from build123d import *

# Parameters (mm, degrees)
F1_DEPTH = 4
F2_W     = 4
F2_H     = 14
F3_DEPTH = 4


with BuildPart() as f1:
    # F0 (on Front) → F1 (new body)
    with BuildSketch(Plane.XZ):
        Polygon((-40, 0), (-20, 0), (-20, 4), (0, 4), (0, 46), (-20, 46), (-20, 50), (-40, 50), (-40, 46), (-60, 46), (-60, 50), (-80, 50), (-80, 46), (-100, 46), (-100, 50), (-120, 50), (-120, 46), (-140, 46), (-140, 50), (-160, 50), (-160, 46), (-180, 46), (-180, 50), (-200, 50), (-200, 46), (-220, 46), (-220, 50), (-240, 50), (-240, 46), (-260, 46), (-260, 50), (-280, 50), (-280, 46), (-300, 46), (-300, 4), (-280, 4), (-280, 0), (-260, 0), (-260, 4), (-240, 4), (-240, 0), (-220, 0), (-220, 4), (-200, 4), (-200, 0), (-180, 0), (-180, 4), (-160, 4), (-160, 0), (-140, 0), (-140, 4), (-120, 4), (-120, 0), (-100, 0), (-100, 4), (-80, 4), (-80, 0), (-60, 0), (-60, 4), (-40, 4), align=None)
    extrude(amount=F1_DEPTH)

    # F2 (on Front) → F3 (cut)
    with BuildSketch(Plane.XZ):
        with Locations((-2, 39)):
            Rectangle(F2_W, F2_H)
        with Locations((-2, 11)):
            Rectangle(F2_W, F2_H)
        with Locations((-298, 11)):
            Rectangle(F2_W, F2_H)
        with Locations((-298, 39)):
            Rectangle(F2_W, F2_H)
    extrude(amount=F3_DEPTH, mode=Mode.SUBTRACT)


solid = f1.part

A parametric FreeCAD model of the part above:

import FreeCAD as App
import Part
import Sketcher
Q = App.Units.Quantity

doc = App.newDocument("Part")
body = doc.addObject("PartDesign::Body", "Body")

# Sketch on XZ plane
sketch1 = body.newObject("Sketcher::SketchObject", "Sketch")
sketch1.AttachmentSupport = (doc.getObject("XZ_Plane"), [""])
sketch1.MapMode = "FlatFace"
sketch1.addGeometry(Part.LineSegment(App.Vector(-40, 0, 0), App.Vector(-20, 0, 0)), False)
sketch1.addGeometry(Part.LineSegment(App.Vector(-20, 0, 0), App.Vector(-20, 4, 0)), False)
sketch1.addGeometry(Part.LineSegment(App.Vector(-20, 4, 0), App.Vector(0, 4, 0)), False)
sketch1.addGeometry(Part.LineSegment(App.Vector(0, 4, 0), App.Vector(0, 46, 0)), False)
sketch1.addGeometry(Part.LineSegment(App.Vector(0, 46, 0), App.Vector(-20, 46, 0)), False)
sketch1.addGeometry(Part.LineSegment(App.Vector(-20, 46, 0), App.Vector(-20, 50, 0)), False)
sketch1.addGeometry(Part.LineSegment(App.Vector(-20, 50, 0), App.Vector(-40, 50, 0)), False)
sketch1.addGeometry(Part.LineSegment(App.Vector(-40, 50, 0), App.Vector(-40, 46, 0)), False)
sketch1.addGeometry(Part.LineSegment(App.Vector(-40, 46, 0), App.Vector(-60, 46, 0)), False)
sketch1.addGeometry(Part.LineSegment(App.Vector(-60, 46, 0), App.Vector(-60, 50, 0)), False)
sketch1.addGeometry(Part.LineSegment(App.Vector(-60, 50, 0), App.Vector(-80, 50, 0)), False)
sketch1.addGeometry(Part.LineSegment(App.Vector(-80, 50, 0), App.Vector(-80, 46, 0)), False)
sketch1.addGeometry(Part.LineSegment(App.Vector(-80, 46, 0), App.Vector(-100, 46, 0)), False)
sketch1.addGeometry(Part.LineSegment(App.Vector(-100, 46, 0), App.Vector(-100, 50, 0)), False)
sketch1.addGeometry(Part.LineSegment(App.Vector(-100, 50, 0), App.Vector(-120, 50, 0)), False)
sketch1.addGeometry(Part.LineSegment(App.Vector(-120, 50, 0), App.Vector(-120, 46, 0)), False)
sketch1.addGeometry(Part.LineSegment(App.Vector(-120, 46, 0), App.Vector(-140, 46, 0)), False)
sketch1.addGeometry(Part.LineSegment(App.Vector(-140, 46, 0), App.Vector(-140, 50, 0)), False)
sketch1.addGeometry(Part.LineSegment(App.Vector(-140, 50, 0), App.Vector(-160, 50, 0)), False)
sketch1.addGeometry(Part.LineSegment(App.Vector(-160, 50, 0), App.Vector(-160, 46, 0)), False)
sketch1.addGeometry(Part.LineSegment(App.Vector(-160, 46, 0), App.Vector(-180, 46, 0)), False)
sketch1.addGeometry(Part.LineSegment(App.Vector(-180, 46, 0), App.Vector(-180, 50, 0)), False)
sketch1.addGeometry(Part.LineSegment(App.Vector(-180, 50, 0), App.Vector(-200, 50, 0)), False)
sketch1.addGeometry(Part.LineSegment(App.Vector(-200, 50, 0), App.Vector(-200, 46, 0)), False)
sketch1.addGeometry(Part.LineSegment(App.Vector(-200, 46, 0), App.Vector(-220, 46, 0)), False)
sketch1.addGeometry(Part.LineSegment(App.Vector(-220, 46, 0), App.Vector(-220, 50, 0)), False)
sketch1.addGeometry(Part.LineSegment(App.Vector(-220, 50, 0), App.Vector(-240, 50, 0)), False)
sketch1.addGeometry(Part.LineSegment(App.Vector(-240, 50, 0), App.Vector(-240, 46, 0)), False)
sketch1.addGeometry(Part.LineSegment(App.Vector(-240, 46, 0), App.Vector(-260, 46, 0)), False)
sketch1.addGeometry(Part.LineSegment(App.Vector(-260, 46, 0), App.Vector(-260, 50, 0)), False)
sketch1.addGeometry(Part.LineSegment(App.Vector(-260, 50, 0), App.Vector(-280, 50, 0)), False)
sketch1.addGeometry(Part.LineSegment(App.Vector(-280, 50, 0), App.Vector(-280, 46, 0)), False)
sketch1.addGeometry(Part.LineSegment(App.Vector(-280, 46, 0), App.Vector(-300, 46, 0)), False)
sketch1.addGeometry(Part.LineSegment(App.Vector(-300, 46, 0), App.Vector(-300, 4, 0)), False)
sketch1.addGeometry(Part.LineSegment(App.Vector(-300, 4, 0), App.Vector(-280, 4, 0)), False)
sketch1.addGeometry(Part.LineSegment(App.Vector(-280, 4, 0), App.Vector(-280, 0, 0)), False)
sketch1.addGeometry(Part.LineSegment(App.Vector(-280, 0, 0), App.Vector(-260, 0, 0)), False)
sketch1.addGeometry(Part.LineSegment(App.Vector(-260, 0, 0), App.Vector(-260, 4, 0)), False)
sketch1.addGeometry(Part.LineSegment(App.Vector(-260, 4, 0), App.Vector(-240, 4, 0)), False)
sketch1.addGeometry(Part.LineSegment(App.Vector(-240, 4, 0), App.Vector(-240, 0, 0)), False)
sketch1.addGeometry(Part.LineSegment(App.Vector(-240, 0, 0), App.Vector(-220, 0, 0)), False)
sketch1.addGeometry(Part.LineSegment(App.Vector(-220, 0, 0), App.Vector(-220, 4, 0)), False)
sketch1.addGeometry(Part.LineSegment(App.Vector(-220, 4, 0), App.Vector(-200, 4, 0)), False)
sketch1.addGeometry(Part.LineSegment(App.Vector(-200, 4, 0), App.Vector(-200, 0, 0)), False)
sketch1.addGeometry(Part.LineSegment(App.Vector(-200, 0, 0), App.Vector(-180, 0, 0)), False)
sketch1.addGeometry(Part.LineSegment(App.Vector(-180, 0, 0), App.Vector(-180, 4, 0)), False)
sketch1.addGeometry(Part.LineSegment(App.Vector(-180, 4, 0), App.Vector(-160, 4, 0)), False)
sketch1.addGeometry(Part.LineSegment(App.Vector(-160, 4, 0), App.Vector(-160, 0, 0)), False)
sketch1.addGeometry(Part.LineSegment(App.Vector(-160, 0, 0), App.Vector(-140, 0, 0)), False)
sketch1.addGeometry(Part.LineSegment(App.Vector(-140, 0, 0), App.Vector(-140, 4, 0)), False)
sketch1.addGeometry(Part.LineSegment(App.Vector(-140, 4, 0), App.Vector(-120, 4, 0)), False)
sketch1.addGeometry(Part.LineSegment(App.Vector(-120, 4, 0), App.Vector(-120, 0, 0)), False)
sketch1.addGeometry(Part.LineSegment(App.Vector(-120, 0, 0), App.Vector(-100, 0, 0)), False)
sketch1.addGeometry(Part.LineSegment(App.Vector(-100, 0, 0), App.Vector(-100, 4, 0)), False)
sketch1.addGeometry(Part.LineSegment(App.Vector(-100, 4, 0), App.Vector(-80, 4, 0)), False)
sketch1.addGeometry(Part.LineSegment(App.Vector(-80, 4, 0), App.Vector(-80, 0, 0)), False)
sketch1.addGeometry(Part.LineSegment(App.Vector(-80, 0, 0), App.Vector(-60, 0, 0)), False)
sketch1.addGeometry(Part.LineSegment(App.Vector(-60, 0, 0), App.Vector(-60, 4, 0)), False)
sketch1.addGeometry(Part.LineSegment(App.Vector(-60, 4, 0), App.Vector(-40, 4, 0)), False)
sketch1.addGeometry(Part.LineSegment(App.Vector(-40, 4, 0), App.Vector(-40, 0, 0)), False)
sketch1.addConstraint(Sketcher.Constraint("Coincident", 0, 2, 1, 1))
sketch1.addConstraint(Sketcher.Constraint("Coincident", 1, 2, 2, 1))
sketch1.addConstraint(Sketcher.Constraint("Coincident", 2, 2, 3, 1))
sketch1.addConstraint(Sketcher.Constraint("Coincident", 3, 2, 4, 1))
sketch1.addConstraint(Sketcher.Constraint("Coincident", 4, 2, 5, 1))
sketch1.addConstraint(Sketcher.Constraint("Coincident", 5, 2, 6, 1))
sketch1.addConstraint(Sketcher.Constraint("Coincident", 6, 2, 7, 1))
sketch1.addConstraint(Sketcher.Constraint("Coincident", 7, 2, 8, 1))
sketch1.addConstraint(Sketcher.Constraint("Coincident", 8, 2, 9, 1))
sketch1.addConstraint(Sketcher.Constraint("Coincident", 9, 2, 10, 1))
sketch1.addConstraint(Sketcher.Constraint("Coincident", 10, 2, 11, 1))
sketch1.addConstraint(Sketcher.Constraint("Coincident", 11, 2, 12, 1))
sketch1.addConstraint(Sketcher.Constraint("Coincident", 12, 2, 13, 1))
sketch1.addConstraint(Sketcher.Constraint("Coincident", 13, 2, 14, 1))
sketch1.addConstraint(Sketcher.Constraint("Coincident", 14, 2, 15, 1))
sketch1.addConstraint(Sketcher.Constraint("Coincident", 15, 2, 16, 1))
sketch1.addConstraint(Sketcher.Constraint("Coincident", 16, 2, 17, 1))
sketch1.addConstraint(Sketcher.Constraint("Coincident", 17, 2, 18, 1))
sketch1.addConstraint(Sketcher.Constraint("Coincident", 18, 2, 19, 1))
sketch1.addConstraint(Sketcher.Constraint("Coincident", 19, 2, 20, 1))
sketch1.addConstraint(Sketcher.Constraint("Coincident", 20, 2, 21, 1))
sketch1.addConstraint(Sketcher.Constraint("Coincident", 21, 2, 22, 1))
sketch1.addConstraint(Sketcher.Constraint("Coincident", 22, 2, 23, 1))
sketch1.addConstraint(Sketcher.Constraint("Coincident", 23, 2, 24, 1))
sketch1.addConstraint(Sketcher.Constraint("Coincident", 24, 2, 25, 1))
sketch1.addConstraint(Sketcher.Constraint("Coincident", 25, 2, 26, 1))
sketch1.addConstraint(Sketcher.Constraint("Coincident", 26, 2, 27, 1))
sketch1.addConstraint(Sketcher.Constraint("Coincident", 27, 2, 28, 1))
sketch1.addConstraint(Sketcher.Constraint("Coincident", 28, 2, 29, 1))
sketch1.addConstraint(Sketcher.Constraint("Coincident", 29, 2, 30, 1))
sketch1.addConstraint(Sketcher.Constraint("Coincident", 30, 2, 31, 1))
sketch1.addConstraint(Sketcher.Constraint("Coincident", 31, 2, 32, 1))
sketch1.addConstraint(Sketcher.Constraint("Coincident", 32, 2, 33, 1))
sketch1.addConstraint(Sketcher.Constraint("Coincident", 33, 2, 34, 1))
sketch1.addConstraint(Sketcher.Constraint("Coincident", 34, 2, 35, 1))
sketch1.addConstraint(Sketcher.Constraint("Coincident", 35, 2, 36, 1))
sketch1.addConstraint(Sketcher.Constraint("Coincident", 36, 2, 37, 1))
sketch1.addConstraint(Sketcher.Constraint("Coincident", 37, 2, 38, 1))
sketch1.addConstraint(Sketcher.Constraint("Coincident", 38, 2, 39, 1))
sketch1.addConstraint(Sketcher.Constraint("Coincident", 39, 2, 40, 1))
sketch1.addConstraint(Sketcher.Constraint("Coincident", 40, 2, 41, 1))
sketch1.addConstraint(Sketcher.Constraint("Coincident", 41, 2, 42, 1))
sketch1.addConstraint(Sketcher.Constraint("Coincident", 42, 2, 43, 1))
sketch1.addConstraint(Sketcher.Constraint("Coincident", 43, 2, 44, 1))
sketch1.addConstraint(Sketcher.Constraint("Coincident", 44, 2, 45, 1))
sketch1.addConstraint(Sketcher.Constraint("Coincident", 45, 2, 46, 1))
sketch1.addConstraint(Sketcher.Constraint("Coincident", 46, 2, 47, 1))
sketch1.addConstraint(Sketcher.Constraint("Coincident", 47, 2, 48, 1))
sketch1.addConstraint(Sketcher.Constraint("Coincident", 48, 2, 49, 1))
sketch1.addConstraint(Sketcher.Constraint("Coincident", 49, 2, 50, 1))
sketch1.addConstraint(Sketcher.Constraint("Coincident", 50, 2, 51, 1))
sketch1.addConstraint(Sketcher.Constraint("Coincident", 51, 2, 52, 1))
sketch1.addConstraint(Sketcher.Constraint("Coincident", 52, 2, 53, 1))
sketch1.addConstraint(Sketcher.Constraint("Coincident", 53, 2, 54, 1))
sketch1.addConstraint(Sketcher.Constraint("Coincident", 54, 2, 55, 1))
sketch1.addConstraint(Sketcher.Constraint("Coincident", 55, 2, 56, 1))
sketch1.addConstraint(Sketcher.Constraint("Coincident", 56, 2, 57, 1))
sketch1.addConstraint(Sketcher.Constraint("Coincident", 57, 2, 58, 1))
sketch1.addConstraint(Sketcher.Constraint("Coincident", 58, 2, 59, 1))
sketch1.addConstraint(Sketcher.Constraint("Coincident", 59, 2, 0, 1))
sketch1.addConstraint(Sketcher.Constraint("Horizontal", 0))
sketch1.addConstraint(Sketcher.Constraint("Vertical", 1))
sketch1.addConstraint(Sketcher.Constraint("Horizontal", 2))
sketch1.addConstraint(Sketcher.Constraint("Vertical", 3))
sketch1.addConstraint(Sketcher.Constraint("Horizontal", 4))
sketch1.addConstraint(Sketcher.Constraint("Vertical", 5))
sketch1.addConstraint(Sketcher.Constraint("Horizontal", 6))
sketch1.addConstraint(Sketcher.Constraint("Vertical", 7))
sketch1.addConstraint(Sketcher.Constraint("Horizontal", 8))
sketch1.addConstraint(Sketcher.Constraint("Vertical", 9))
sketch1.addConstraint(Sketcher.Constraint("Horizontal", 10))
sketch1.addConstraint(Sketcher.Constraint("Vertical", 11))
sketch1.addConstraint(Sketcher.Constraint("Horizontal", 12))
sketch1.addConstraint(Sketcher.Constraint("Vertical", 13))
sketch1.addConstraint(Sketcher.Constraint("Horizontal", 14))
sketch1.addConstraint(Sketcher.Constraint("Vertical", 15))
sketch1.addConstraint(Sketcher.Constraint("Horizontal", 16))
sketch1.addConstraint(Sketcher.Constraint("Vertical", 17))
sketch1.addConstraint(Sketcher.Constraint("Horizontal", 18))
sketch1.addConstraint(Sketcher.Constraint("Vertical", 19))
sketch1.addConstraint(Sketcher.Constraint("Horizontal", 20))
sketch1.addConstraint(Sketcher.Constraint("Vertical", 21))
sketch1.addConstraint(Sketcher.Constraint("Horizontal", 22))
sketch1.addConstraint(Sketcher.Constraint("Vertical", 23))
sketch1.addConstraint(Sketcher.Constraint("Horizontal", 24))
sketch1.addConstraint(Sketcher.Constraint("Vertical", 25))
sketch1.addConstraint(Sketcher.Constraint("Horizontal", 26))
sketch1.addConstraint(Sketcher.Constraint("Vertical", 27))
sketch1.addConstraint(Sketcher.Constraint("Horizontal", 28))
sketch1.addConstraint(Sketcher.Constraint("Vertical", 29))
sketch1.addConstraint(Sketcher.Constraint("Horizontal", 30))
sketch1.addConstraint(Sketcher.Constraint("Vertical", 31))
sketch1.addConstraint(Sketcher.Constraint("Horizontal", 32))
sketch1.addConstraint(Sketcher.Constraint("Vertical", 33))
sketch1.addConstraint(Sketcher.Constraint("Horizontal", 34))
sketch1.addConstraint(Sketcher.Constraint("Vertical", 35))
sketch1.addConstraint(Sketcher.Constraint("Horizontal", 36))
sketch1.addConstraint(Sketcher.Constraint("Vertical", 37))
sketch1.addConstraint(Sketcher.Constraint("Horizontal", 38))
sketch1.addConstraint(Sketcher.Constraint("Vertical", 39))
sketch1.addConstraint(Sketcher.Constraint("Horizontal", 40))
sketch1.addConstraint(Sketcher.Constraint("Vertical", 41))
sketch1.addConstraint(Sketcher.Constraint("Horizontal", 42))
sketch1.addConstraint(Sketcher.Constraint("Vertical", 43))
sketch1.addConstraint(Sketcher.Constraint("Horizontal", 44))
sketch1.addConstraint(Sketcher.Constraint("Vertical", 45))
sketch1.addConstraint(Sketcher.Constraint("Horizontal", 46))
sketch1.addConstraint(Sketcher.Constraint("Vertical", 47))
sketch1.addConstraint(Sketcher.Constraint("Horizontal", 48))
sketch1.addConstraint(Sketcher.Constraint("Vertical", 49))
sketch1.addConstraint(Sketcher.Constraint("Horizontal", 50))
sketch1.addConstraint(Sketcher.Constraint("Vertical", 51))
sketch1.addConstraint(Sketcher.Constraint("Horizontal", 52))
sketch1.addConstraint(Sketcher.Constraint("Vertical", 53))
sketch1.addConstraint(Sketcher.Constraint("Horizontal", 54))
sketch1.addConstraint(Sketcher.Constraint("Vertical", 55))
sketch1.addConstraint(Sketcher.Constraint("Horizontal", 56))
sketch1.addConstraint(Sketcher.Constraint("Vertical", 57))
sketch1.addConstraint(Sketcher.Constraint("Horizontal", 58))
sketch1.addConstraint(Sketcher.Constraint("Vertical", 59))
sketch1.addConstraint(Sketcher.Constraint("PointOnObject", 0, 2, -1))
sketch1.addConstraint(Sketcher.Constraint("PointOnObject", 2, 2, -2))
sketch1.addConstraint(Sketcher.Constraint("PointOnObject", 35, 2, -1))
sketch1.addConstraint(Sketcher.Constraint("PointOnObject", 39, 2, -1))
sketch1.addConstraint(Sketcher.Constraint("PointOnObject", 43, 2, -1))
sketch1.addConstraint(Sketcher.Constraint("PointOnObject", 47, 2, -1))
sketch1.addConstraint(Sketcher.Constraint("PointOnObject", 51, 2, -1))
sketch1.addConstraint(Sketcher.Constraint("PointOnObject", 55, 2, -1))
sketch1.addConstraint(Sketcher.Constraint("Horizontal", 4, 2, 7, 2))
sketch1.addConstraint(Sketcher.Constraint("Horizontal", 6, 2, 9, 2))
sketch1.addConstraint(Sketcher.Constraint("Horizontal", 8, 2, 11, 2))
sketch1.addConstraint(Sketcher.Constraint("Horizontal", 10, 2, 13, 2))
sketch1.addConstraint(Sketcher.Constraint("Horizontal", 12, 2, 15, 2))
sketch1.addConstraint(Sketcher.Constraint("Horizontal", 14, 2, 17, 2))
sketch1.addConstraint(Sketcher.Constraint("Horizontal", 16, 2, 19, 2))
sketch1.addConstraint(Sketcher.Constraint("Horizontal", 18, 2, 21, 2))
sketch1.addConstraint(Sketcher.Constraint("Horizontal", 20, 2, 23, 2))
sketch1.addConstraint(Sketcher.Constraint("Horizontal", 22, 2, 25, 2))
sketch1.addConstraint(Sketcher.Constraint("Horizontal", 24, 2, 27, 2))
sketch1.addConstraint(Sketcher.Constraint("Horizontal", 26, 2, 29, 2))
sketch1.addConstraint(Sketcher.Constraint("Horizontal", 28, 2, 31, 2))
sketch1.addConstraint(Sketcher.Constraint("Horizontal", 2, 2, 33, 2))
sketch1.addConstraint(Sketcher.Constraint("Horizontal", 34, 2, 37, 2))
sketch1.addConstraint(Sketcher.Constraint("Horizontal", 38, 2, 41, 2))
sketch1.addConstraint(Sketcher.Constraint("Horizontal", 42, 2, 45, 2))
sketch1.addConstraint(Sketcher.Constraint("Horizontal", 46, 2, 49, 2))
sketch1.addConstraint(Sketcher.Constraint("Horizontal", 50, 2, 53, 2))
sketch1.addConstraint(Sketcher.Constraint("Horizontal", 54, 2, 57, 2))
sketch1.addConstraint(Sketcher.Constraint("Vertical", 1, 2, 4, 2))
sketch1.addConstraint(Sketcher.Constraint("Vertical", 31, 2, 34, 2))
sketch1.addConstraint(Sketcher.Constraint("Vertical", 29, 2, 36, 2))
sketch1.addConstraint(Sketcher.Constraint("Vertical", 27, 2, 38, 2))
sketch1.addConstraint(Sketcher.Constraint("Vertical", 25, 2, 40, 2))
sketch1.addConstraint(Sketcher.Constraint("Vertical", 23, 2, 42, 2))
sketch1.addConstraint(Sketcher.Constraint("Vertical", 21, 2, 44, 2))
sketch1.addConstraint(Sketcher.Constraint("Vertical", 19, 2, 46, 2))
sketch1.addConstraint(Sketcher.Constraint("Vertical", 17, 2, 48, 2))
sketch1.addConstraint(Sketcher.Constraint("Vertical", 15, 2, 50, 2))
sketch1.addConstraint(Sketcher.Constraint("Vertical", 13, 2, 52, 2))
sketch1.addConstraint(Sketcher.Constraint("Vertical", 11, 2, 54, 2))
sketch1.addConstraint(Sketcher.Constraint("Vertical", 9, 2, 56, 2))
sketch1.addConstraint(Sketcher.Constraint("Vertical", 7, 2, 58, 2))
sketch1.addConstraint(Sketcher.Constraint("Equal", 0, 2))
sketch1.addConstraint(Sketcher.Constraint("Equal", 6, 8))
sketch1.addConstraint(Sketcher.Constraint("Equal", 8, 10))
sketch1.addConstraint(Sketcher.Constraint("Equal", 10, 12))
sketch1.addConstraint(Sketcher.Constraint("Equal", 12, 14))
sketch1.addConstraint(Sketcher.Constraint("Equal", 14, 16))
sketch1.addConstraint(Sketcher.Constraint("Equal", 16, 18))
sketch1.addConstraint(Sketcher.Constraint("Equal", 18, 20))
sketch1.addConstraint(Sketcher.Constraint("Equal", 20, 22))
sketch1.addConstraint(Sketcher.Constraint("Equal", 22, 24))
sketch1.addConstraint(Sketcher.Constraint("Equal", 24, 26))
sketch1.addConstraint(Sketcher.Constraint("Equal", 26, 28))
sketch1.addConstraint(Sketcher.Constraint("Equal", 28, 30))
sketch1.addConstraint(Sketcher.Constraint("Equal", 30, 32))
sketch1.addConstraint(Sketcher.Constraint("Equal", 1, 5))
sketch1.addConstraint(Sketcher.Constraint("DistanceX", 0, 1, 0, 2, Q("20 mm")))
sketch1.addConstraint(Sketcher.Constraint("DistanceY", 1, 1, 1, 2, Q("4 mm")))
sketch1.addConstraint(Sketcher.Constraint("DistanceY", 3, 1, 3, 2, Q("42 mm")))
pad1 = body.newObject("PartDesign::Pad", "Pad")
pad1.Profile = sketch1
pad1.Length = 4

# Sketch on XZ plane
sketch2 = body.newObject("Sketcher::SketchObject", "Sketch001")
sketch2.AttachmentSupport = (doc.getObject("XZ_Plane"), [""])
sketch2.MapMode = "FlatFace"
sketch2.addGeometry(Part.LineSegment(App.Vector(-4, 46, 0), App.Vector(-4, 32, 0)), False)
sketch2.addGeometry(Part.LineSegment(App.Vector(-4, 32, 0), App.Vector(0, 32, 0)), False)
sketch2.addGeometry(Part.LineSegment(App.Vector(0, 32, 0), App.Vector(0, 46, 0)), False)
sketch2.addGeometry(Part.LineSegment(App.Vector(0, 46, 0), App.Vector(-4, 46, 0)), False)
sketch2.addGeometry(Part.LineSegment(App.Vector(-4, 18, 0), App.Vector(-4, 4, 0)), False)
sketch2.addGeometry(Part.LineSegment(App.Vector(-4, 4, 0), App.Vector(0, 4, 0)), False)
sketch2.addGeometry(Part.LineSegment(App.Vector(0, 4, 0), App.Vector(0, 18, 0)), False)
sketch2.addGeometry(Part.LineSegment(App.Vector(0, 18, 0), App.Vector(-4, 18, 0)), False)
sketch2.addGeometry(Part.LineSegment(App.Vector(-300, 18, 0), App.Vector(-300, 4, 0)), False)
sketch2.addGeometry(Part.LineSegment(App.Vector(-300, 4, 0), App.Vector(-296, 4, 0)), False)
sketch2.addGeometry(Part.LineSegment(App.Vector(-296, 4, 0), App.Vector(-296, 18, 0)), False)
sketch2.addGeometry(Part.LineSegment(App.Vector(-296, 18, 0), App.Vector(-300, 18, 0)), False)
sketch2.addGeometry(Part.LineSegment(App.Vector(-300, 46, 0), App.Vector(-300, 32, 0)), False)
sketch2.addGeometry(Part.LineSegment(App.Vector(-300, 32, 0), App.Vector(-296, 32, 0)), False)
sketch2.addGeometry(Part.LineSegment(App.Vector(-296, 32, 0), App.Vector(-296, 46, 0)), False)
sketch2.addGeometry(Part.LineSegment(App.Vector(-296, 46, 0), App.Vector(-300, 46, 0)), False)
sketch2.addConstraint(Sketcher.Constraint("Coincident", 0, 2, 1, 1))
sketch2.addConstraint(Sketcher.Constraint("Coincident", 1, 2, 2, 1))
sketch2.addConstraint(Sketcher.Constraint("Coincident", 2, 2, 3, 1))
sketch2.addConstraint(Sketcher.Constraint("Coincident", 3, 2, 0, 1))
sketch2.addConstraint(Sketcher.Constraint("Coincident", 4, 2, 5, 1))
sketch2.addConstraint(Sketcher.Constraint("Coincident", 5, 2, 6, 1))
sketch2.addConstraint(Sketcher.Constraint("Coincident", 6, 2, 7, 1))
sketch2.addConstraint(Sketcher.Constraint("Coincident", 7, 2, 4, 1))
sketch2.addConstraint(Sketcher.Constraint("Coincident", 8, 2, 9, 1))
sketch2.addConstraint(Sketcher.Constraint("Coincident", 9, 2, 10, 1))
sketch2.addConstraint(Sketcher.Constraint("Coincident", 10, 2, 11, 1))
sketch2.addConstraint(Sketcher.Constraint("Coincident", 11, 2, 8, 1))
sketch2.addConstraint(Sketcher.Constraint("Coincident", 12, 2, 13, 1))
sketch2.addConstraint(Sketcher.Constraint("Coincident", 13, 2, 14, 1))
sketch2.addConstraint(Sketcher.Constraint("Coincident", 14, 2, 15, 1))
sketch2.addConstraint(Sketcher.Constraint("Coincident", 15, 2, 12, 1))
sketch2.addConstraint(Sketcher.Constraint("Vertical", 0))
sketch2.addConstraint(Sketcher.Constraint("Horizontal", 1))
sketch2.addConstraint(Sketcher.Constraint("Vertical", 2))
sketch2.addConstraint(Sketcher.Constraint("Horizontal", 3))
sketch2.addConstraint(Sketcher.Constraint("Vertical", 4))
sketch2.addConstraint(Sketcher.Constraint("Horizontal", 5))
sketch2.addConstraint(Sketcher.Constraint("Vertical", 6))
sketch2.addConstraint(Sketcher.Constraint("Horizontal", 7))
sketch2.addConstraint(Sketcher.Constraint("Vertical", 8))
sketch2.addConstraint(Sketcher.Constraint("Horizontal", 9))
sketch2.addConstraint(Sketcher.Constraint("Vertical", 10))
sketch2.addConstraint(Sketcher.Constraint("Horizontal", 11))
sketch2.addConstraint(Sketcher.Constraint("Vertical", 12))
sketch2.addConstraint(Sketcher.Constraint("Horizontal", 13))
sketch2.addConstraint(Sketcher.Constraint("Vertical", 14))
sketch2.addConstraint(Sketcher.Constraint("Horizontal", 15))
sketch2.addConstraint(Sketcher.Constraint("PointOnObject", 1, 2, -2))
sketch2.addConstraint(Sketcher.Constraint("PointOnObject", 5, 2, -2))
sketch2.addConstraint(Sketcher.Constraint("Horizontal", 5, 2, 8, 2))
sketch2.addConstraint(Sketcher.Constraint("Horizontal", 7, 2, 10, 2))
sketch2.addConstraint(Sketcher.Constraint("Horizontal", 1, 2, 12, 2))
sketch2.addConstraint(Sketcher.Constraint("Horizontal", 3, 2, 14, 2))
sketch2.addConstraint(Sketcher.Constraint("Vertical", 3, 2, 4, 2))
sketch2.addConstraint(Sketcher.Constraint("Vertical", 11, 2, 12, 2))
sketch2.addConstraint(Sketcher.Constraint("Vertical", 10, 2, 13, 2))
sketch2.addConstraint(Sketcher.Constraint("Equal", 7, 9))
sketch2.addConstraint(Sketcher.Constraint("Equal", 2, 4))
sketch2.addConstraint(Sketcher.Constraint("DistanceX", 1, 1, 1, 2, Q("4 mm")))
sketch2.addConstraint(Sketcher.Constraint("DistanceY", 0, 2, 0, 1, Q("14 mm")))
sketch2.addConstraint(Sketcher.Constraint("DistanceY", -1, 1, 0, 2, Q("32 mm")))
sketch2.addConstraint(Sketcher.Constraint("DistanceY", -1, 1, 4, 2, Q("4 mm")))
sketch2.addConstraint(Sketcher.Constraint("DistanceX", 8, 2, -1, 1, Q("300 mm")))
pocket1 = body.newObject("PartDesign::Pocket", "Pocket")
pocket1.Profile = sketch2
pocket1.Length = 4
pocket1.Reversed = True

doc.recompute()
